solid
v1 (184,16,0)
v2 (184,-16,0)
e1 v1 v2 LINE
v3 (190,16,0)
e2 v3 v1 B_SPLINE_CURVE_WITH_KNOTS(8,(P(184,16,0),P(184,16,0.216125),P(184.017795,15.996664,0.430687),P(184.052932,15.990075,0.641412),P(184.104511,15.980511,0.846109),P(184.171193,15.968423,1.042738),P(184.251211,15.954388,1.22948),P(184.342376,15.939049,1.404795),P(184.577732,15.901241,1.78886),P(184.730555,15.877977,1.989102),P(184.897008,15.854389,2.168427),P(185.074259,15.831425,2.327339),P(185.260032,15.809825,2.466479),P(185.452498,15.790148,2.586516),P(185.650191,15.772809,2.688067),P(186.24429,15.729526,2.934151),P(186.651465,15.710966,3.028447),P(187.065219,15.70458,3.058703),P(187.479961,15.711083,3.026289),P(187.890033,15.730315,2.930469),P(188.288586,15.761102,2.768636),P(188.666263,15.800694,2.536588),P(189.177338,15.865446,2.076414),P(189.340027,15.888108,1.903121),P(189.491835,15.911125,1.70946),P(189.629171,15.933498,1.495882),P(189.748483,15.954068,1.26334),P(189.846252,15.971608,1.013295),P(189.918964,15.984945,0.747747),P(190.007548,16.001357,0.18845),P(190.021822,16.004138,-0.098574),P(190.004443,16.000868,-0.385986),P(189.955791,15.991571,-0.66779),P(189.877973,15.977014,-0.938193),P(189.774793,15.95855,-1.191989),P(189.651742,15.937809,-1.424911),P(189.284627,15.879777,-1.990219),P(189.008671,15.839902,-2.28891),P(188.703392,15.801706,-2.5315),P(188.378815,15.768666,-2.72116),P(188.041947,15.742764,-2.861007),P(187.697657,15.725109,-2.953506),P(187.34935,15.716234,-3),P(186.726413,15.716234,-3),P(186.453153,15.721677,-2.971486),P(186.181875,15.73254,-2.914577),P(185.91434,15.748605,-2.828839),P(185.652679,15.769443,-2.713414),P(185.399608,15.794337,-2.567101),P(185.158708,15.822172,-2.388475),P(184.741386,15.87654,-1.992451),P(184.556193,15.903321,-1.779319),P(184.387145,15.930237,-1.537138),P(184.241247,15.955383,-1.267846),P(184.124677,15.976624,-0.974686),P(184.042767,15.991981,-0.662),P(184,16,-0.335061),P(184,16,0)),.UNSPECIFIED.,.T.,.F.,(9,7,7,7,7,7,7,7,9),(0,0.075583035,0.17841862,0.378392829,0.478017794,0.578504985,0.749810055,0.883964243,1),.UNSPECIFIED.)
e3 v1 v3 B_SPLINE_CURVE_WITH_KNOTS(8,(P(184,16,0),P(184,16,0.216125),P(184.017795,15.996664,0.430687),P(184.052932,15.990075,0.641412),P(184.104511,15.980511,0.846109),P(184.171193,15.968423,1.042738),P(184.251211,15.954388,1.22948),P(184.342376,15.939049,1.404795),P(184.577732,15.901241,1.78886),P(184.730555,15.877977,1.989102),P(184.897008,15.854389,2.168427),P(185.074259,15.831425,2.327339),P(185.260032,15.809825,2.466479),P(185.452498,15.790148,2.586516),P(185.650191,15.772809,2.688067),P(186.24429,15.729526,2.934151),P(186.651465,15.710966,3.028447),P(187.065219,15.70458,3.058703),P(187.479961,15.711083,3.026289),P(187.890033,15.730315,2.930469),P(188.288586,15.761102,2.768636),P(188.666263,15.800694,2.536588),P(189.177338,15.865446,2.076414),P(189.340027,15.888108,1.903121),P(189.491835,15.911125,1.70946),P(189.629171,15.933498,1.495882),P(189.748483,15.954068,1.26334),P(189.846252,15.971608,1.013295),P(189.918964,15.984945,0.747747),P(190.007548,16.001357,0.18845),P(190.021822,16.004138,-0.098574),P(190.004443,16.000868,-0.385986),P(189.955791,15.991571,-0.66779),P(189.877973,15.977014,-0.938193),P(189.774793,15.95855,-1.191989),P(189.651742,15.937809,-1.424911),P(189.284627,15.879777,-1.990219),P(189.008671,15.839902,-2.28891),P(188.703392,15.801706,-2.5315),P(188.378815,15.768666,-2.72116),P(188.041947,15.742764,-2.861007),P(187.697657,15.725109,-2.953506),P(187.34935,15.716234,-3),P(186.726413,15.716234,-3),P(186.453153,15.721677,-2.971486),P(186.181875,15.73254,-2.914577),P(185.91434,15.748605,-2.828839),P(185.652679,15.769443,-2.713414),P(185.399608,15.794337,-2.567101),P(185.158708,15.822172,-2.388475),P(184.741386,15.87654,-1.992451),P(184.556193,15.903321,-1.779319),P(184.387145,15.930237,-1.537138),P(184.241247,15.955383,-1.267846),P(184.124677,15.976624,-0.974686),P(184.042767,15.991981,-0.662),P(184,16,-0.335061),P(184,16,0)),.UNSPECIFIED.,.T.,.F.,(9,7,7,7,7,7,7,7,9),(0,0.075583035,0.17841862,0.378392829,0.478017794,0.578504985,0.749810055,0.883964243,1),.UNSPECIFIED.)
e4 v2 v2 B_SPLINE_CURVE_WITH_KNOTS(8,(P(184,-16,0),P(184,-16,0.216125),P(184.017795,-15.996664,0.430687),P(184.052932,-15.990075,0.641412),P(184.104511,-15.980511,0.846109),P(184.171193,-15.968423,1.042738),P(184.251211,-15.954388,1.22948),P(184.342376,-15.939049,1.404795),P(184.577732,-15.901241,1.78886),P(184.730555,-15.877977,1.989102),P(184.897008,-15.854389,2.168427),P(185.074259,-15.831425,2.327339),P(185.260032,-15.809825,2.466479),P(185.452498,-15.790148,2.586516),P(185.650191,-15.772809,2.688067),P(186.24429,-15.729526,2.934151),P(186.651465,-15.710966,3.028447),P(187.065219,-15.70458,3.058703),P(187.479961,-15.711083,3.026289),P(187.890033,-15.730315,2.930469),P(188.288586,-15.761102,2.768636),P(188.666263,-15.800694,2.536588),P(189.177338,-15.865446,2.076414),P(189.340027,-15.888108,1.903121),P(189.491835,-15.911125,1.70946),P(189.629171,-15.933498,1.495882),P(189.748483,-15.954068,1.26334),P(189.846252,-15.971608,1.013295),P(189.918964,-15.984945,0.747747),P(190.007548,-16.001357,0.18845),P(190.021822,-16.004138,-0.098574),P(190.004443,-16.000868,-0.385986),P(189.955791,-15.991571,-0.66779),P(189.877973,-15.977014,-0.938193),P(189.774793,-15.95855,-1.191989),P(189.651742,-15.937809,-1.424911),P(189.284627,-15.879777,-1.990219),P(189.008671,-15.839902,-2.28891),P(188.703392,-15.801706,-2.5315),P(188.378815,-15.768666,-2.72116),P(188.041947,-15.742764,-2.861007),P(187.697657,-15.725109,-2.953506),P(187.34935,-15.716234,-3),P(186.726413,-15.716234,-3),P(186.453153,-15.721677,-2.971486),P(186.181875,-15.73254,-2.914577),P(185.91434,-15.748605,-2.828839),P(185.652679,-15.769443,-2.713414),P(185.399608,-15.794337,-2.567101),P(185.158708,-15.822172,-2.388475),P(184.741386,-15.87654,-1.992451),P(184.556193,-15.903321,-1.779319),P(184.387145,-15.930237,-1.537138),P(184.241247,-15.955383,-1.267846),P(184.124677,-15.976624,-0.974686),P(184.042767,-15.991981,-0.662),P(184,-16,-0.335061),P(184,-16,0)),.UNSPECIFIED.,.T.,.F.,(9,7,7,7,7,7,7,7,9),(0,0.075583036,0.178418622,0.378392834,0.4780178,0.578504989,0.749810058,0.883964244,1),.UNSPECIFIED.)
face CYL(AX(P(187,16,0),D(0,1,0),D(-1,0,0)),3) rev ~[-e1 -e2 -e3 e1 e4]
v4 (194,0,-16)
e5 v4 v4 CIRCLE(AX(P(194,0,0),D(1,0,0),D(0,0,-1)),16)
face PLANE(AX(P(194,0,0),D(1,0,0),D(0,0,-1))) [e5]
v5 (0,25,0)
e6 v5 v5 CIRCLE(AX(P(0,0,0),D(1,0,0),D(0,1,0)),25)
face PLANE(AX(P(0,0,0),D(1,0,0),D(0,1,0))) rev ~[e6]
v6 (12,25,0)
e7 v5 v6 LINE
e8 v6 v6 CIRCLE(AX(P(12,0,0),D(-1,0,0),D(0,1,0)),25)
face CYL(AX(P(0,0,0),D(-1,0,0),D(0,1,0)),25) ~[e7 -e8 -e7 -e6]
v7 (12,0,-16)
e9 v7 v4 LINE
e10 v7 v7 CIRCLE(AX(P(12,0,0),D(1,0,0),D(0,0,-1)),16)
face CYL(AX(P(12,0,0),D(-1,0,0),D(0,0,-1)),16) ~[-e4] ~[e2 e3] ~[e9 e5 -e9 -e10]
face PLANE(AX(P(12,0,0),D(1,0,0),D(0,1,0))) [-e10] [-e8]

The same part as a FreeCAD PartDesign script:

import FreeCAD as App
import Part
import Sketcher
Q = App.Units.Quantity

doc = App.newDocument("Part")
body = doc.addObject("PartDesign::Body", "Body")

# Sketch on YZ plane
sketch1 = body.newObject("Sketcher::SketchObject", "Sketch")
sketch1.AttachmentSupport = (doc.getObject("YZ_Plane"), [""])
sketch1.MapMode = "FlatFace"
sketch1.addGeometry(Part.Circle(App.Vector(0, 0, 0), App.Vector(0, 0, 1), 25), False)
sketch1.addConstraint(Sketcher.Constraint("Coincident", 0, 3, -1, 1))
sketch1.addConstraint(Sketcher.Constraint("Diameter", 0, Q("50 mm")))
pad1 = body.newObject("PartDesign::Pad", "Pad")
pad1.Profile = sketch1
pad1.Length = 12

# Sketch on YZ plane
sketch2 = body.newObject("Sketcher::SketchObject", "Sketch001")
sketch2.AttachmentSupport = (doc.getObject("YZ_Plane"), [""])
sketch2.MapMode = "FlatFace"
sketch2.AttachmentOffset = App.Placement(App.Vector(0, 0, 12), App.Rotation())
sketch2.addGeometry(Part.Circle(App.Vector(0, 0, 0), App.Vector(0, 0, 1), 16), False)
sketch2.addConstraint(Sketcher.Constraint("Coincident", 0, 3, -1, 1))
sketch2.addConstraint(Sketcher.Constraint("Diameter", 0, Q("32 mm")))
pad2 = body.newObject("PartDesign::Pad", "Pad001")
pad2.Profile = sketch2
pad2.Length = 182

# Sketch on XZ plane
sketch3 = body.newObject("Sketcher::SketchObject", "Sketch002")
sketch3.AttachmentSupport = (doc.getObject("XZ_Plane"), [""])
sketch3.MapMode = "FlatFace"
sketch3.AttachmentOffset = App.Placement(App.Vector(0, 0, -16), App.Rotation())
sketch3.addGeometry(Part.Circle(App.Vector(187, 0, 0), App.Vector(0, 0, 1), 3), False)
sketch3.addConstraint(Sketcher.Constraint("PointOnObject", 0, 3, -1))
sketch3.addConstraint(Sketcher.Constraint("Diameter", 0, Q("6 mm")))
sketch3.addConstraint(Sketcher.Constraint("DistanceX", -1, 1, 0, 3, Q("187 mm")))
pocket1 = body.newObject("PartDesign::Pocket", "Pocket")
pocket1.Profile = sketch3
pocket1.Type = "ThroughAll"
pocket1.Reversed = True

doc.recompute()
